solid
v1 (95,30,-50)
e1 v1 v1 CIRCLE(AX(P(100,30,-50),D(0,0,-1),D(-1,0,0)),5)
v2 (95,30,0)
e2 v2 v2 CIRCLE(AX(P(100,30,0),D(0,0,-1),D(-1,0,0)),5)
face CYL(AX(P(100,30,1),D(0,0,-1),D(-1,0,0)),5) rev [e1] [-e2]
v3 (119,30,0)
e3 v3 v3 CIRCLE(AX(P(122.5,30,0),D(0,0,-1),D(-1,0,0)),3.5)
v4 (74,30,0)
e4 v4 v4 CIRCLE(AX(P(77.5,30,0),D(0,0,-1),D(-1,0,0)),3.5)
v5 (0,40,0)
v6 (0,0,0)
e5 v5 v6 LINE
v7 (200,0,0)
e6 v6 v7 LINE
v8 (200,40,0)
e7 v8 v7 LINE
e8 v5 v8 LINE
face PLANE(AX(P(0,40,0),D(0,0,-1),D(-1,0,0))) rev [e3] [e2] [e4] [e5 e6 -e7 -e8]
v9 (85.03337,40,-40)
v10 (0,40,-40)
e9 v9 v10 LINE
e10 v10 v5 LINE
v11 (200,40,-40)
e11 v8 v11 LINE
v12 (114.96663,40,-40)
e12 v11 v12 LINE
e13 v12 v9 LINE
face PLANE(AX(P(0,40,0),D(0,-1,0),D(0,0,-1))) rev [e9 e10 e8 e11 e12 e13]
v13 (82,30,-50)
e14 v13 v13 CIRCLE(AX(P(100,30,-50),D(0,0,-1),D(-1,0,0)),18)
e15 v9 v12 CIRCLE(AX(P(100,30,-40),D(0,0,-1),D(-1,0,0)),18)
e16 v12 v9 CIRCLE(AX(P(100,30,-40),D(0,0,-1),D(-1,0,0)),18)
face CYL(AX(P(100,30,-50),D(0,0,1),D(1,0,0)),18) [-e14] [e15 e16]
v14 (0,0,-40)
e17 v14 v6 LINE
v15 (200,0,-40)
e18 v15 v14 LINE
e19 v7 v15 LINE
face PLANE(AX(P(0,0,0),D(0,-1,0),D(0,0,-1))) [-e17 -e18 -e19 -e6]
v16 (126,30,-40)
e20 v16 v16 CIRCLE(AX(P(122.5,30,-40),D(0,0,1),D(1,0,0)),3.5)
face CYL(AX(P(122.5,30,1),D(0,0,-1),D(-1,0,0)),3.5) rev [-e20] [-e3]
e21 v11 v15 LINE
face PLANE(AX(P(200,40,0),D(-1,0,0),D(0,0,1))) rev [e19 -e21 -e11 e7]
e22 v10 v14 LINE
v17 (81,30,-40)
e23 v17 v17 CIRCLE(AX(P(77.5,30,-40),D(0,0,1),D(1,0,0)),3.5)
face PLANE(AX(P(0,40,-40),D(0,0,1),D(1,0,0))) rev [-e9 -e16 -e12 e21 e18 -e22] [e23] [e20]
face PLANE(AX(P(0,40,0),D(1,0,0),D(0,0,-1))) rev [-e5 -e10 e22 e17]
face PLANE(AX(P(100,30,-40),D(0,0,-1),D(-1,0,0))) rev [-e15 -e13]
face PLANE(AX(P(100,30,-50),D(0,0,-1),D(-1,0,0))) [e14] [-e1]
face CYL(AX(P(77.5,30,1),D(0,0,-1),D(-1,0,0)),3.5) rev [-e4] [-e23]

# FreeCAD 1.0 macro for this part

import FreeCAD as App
import Part
import Sketcher

V = App.Vector
Q = App.Units.Quantity

doc = App.newDocument("Part")
body = doc.addObject("PartDesign::Body", "Body")

sketch1 = body.newObject("Sketcher::SketchObject", "Sketch")
sketch1.AttachmentSupport = (doc.getObject("XZ_Plane"), [""])
sketch1.MapMode = "FlatFace"
sketch1.addGeometry([
    Part.LineSegment(V(0, -40, 0), V(0, 0, 0)),
    Part.LineSegment(V(0, 0, 0), V(200, 0, 0)),
    Part.LineSegment(V(200, 0, 0), V(200, -40, 0)),
    Part.LineSegment(V(200, -40, 0), V(0, -40, 0)),
], False)
sketch1.addConstraint([
    Sketcher.Constraint("Coincident", 0, 2, 1, 1),
    Sketcher.Constraint("Coincident", 1, 2, 2, 1),
    Sketcher.Constraint("Coincident", 2, 2, 3, 1),
    Sketcher.Constraint("Coincident", 3, 2, 0, 1),
    Sketcher.Constraint("Vertical", 0),
    Sketcher.Constraint("Horizontal", 1),
    Sketcher.Constraint("Vertical", 2),
    Sketcher.Constraint("Horizontal", 3),
    Sketcher.Constraint("Coincident", 0, 2, -1, 1),
    Sketcher.Constraint("DistanceX", 1, 1, 1, 2, Q("200 mm")),
    Sketcher.Constraint("DistanceY", 0, 1, 0, 2, Q("40 mm")),
])
pad1 = body.newObject("PartDesign::Pad", "Pad")
pad1.Profile = sketch1
pad1.Length = 40
pad1.Reversed = True

sketch2 = body.newObject("Sketcher::SketchObject", "Sketch001")
sketch2.AttachmentSupport = (doc.getObject("XY_Plane"), [""])
sketch2.MapMode = "FlatFace"
sketch2.AttachmentOffset = App.Placement(V(0, 0, -40), App.Rotation())
sketch2.addGeometry(Part.Circle(V(100, 30, 0), V(0, 0, 1), 18), False)
sketch2.addConstraint([
    Sketcher.Constraint("Diameter", 0, Q("36 mm")),
    Sketcher.Constraint("DistanceX", -1, 1, 0, 3, Q("100 mm")),
    Sketcher.Constraint("DistanceY", -1, 1, 0, 3, Q("30 mm")),
])
pad2 = body.newObject("PartDesign::Pad", "Pad001")
pad2.Profile = sketch2
pad2.Length = 10
pad2.Reversed = True

sketch3 = body.newObject("Sketcher::SketchObject", "Sketch002")
sketch3.AttachmentSupport = (doc.getObject("XY_Plane"), [""])
sketch3.MapMode = "FlatFace"
sketch3.AttachmentOffset = App.Placement(V(0, 0, -50), App.Rotation())
sketch3.addGeometry(Part.Circle(V(100, 30, 0), V(0, 0, 1), 5), False)
sketch3.addConstraint([
    Sketcher.Constraint("Diameter", 0, Q("10 mm")),
    Sketcher.Constraint("DistanceX", -1, 1, 0, 3, Q("100 mm")),
    Sketcher.Constraint("DistanceY", -1, 1, 0, 3, Q("30 mm")),
])
pocket1 = body.newObject("PartDesign::Pocket", "Pocket")
pocket1.Profile = sketch3
pocket1.Length = 51
pocket1.Reversed = True

sketch4 = body.newObject("Sketcher::SketchObject", "Sketch003")
sketch4.AttachmentSupport = (doc.getObject("XY_Plane"), [""])
sketch4.MapMode = "FlatFace"
sketch4.AttachmentOffset = App.Placement(V(0, 0, -50), App.Rotation())
sketch4.addGeometry([
    Part.Circle(V(77.5, 30, 0), V(0, 0, 1), 3.5),
    Part.Circle(V(122.5, 30, 0), V(0, 0, 1), 3.5),
], False)
sketch4.addConstraint([
    Sketcher.Constraint("Equal", 0, 1),
    Sketcher.Constraint("Horizontal", 0, 3, 1, 3),
    Sketcher.Constraint("Diameter", 0, Q("7 mm")),
    Sketcher.Constraint("DistanceY", -1, 1, 0, 3, Q("30 mm")),
    Sketcher.Constraint("DistanceX", 0, 3, 1, 3, Q("45 mm")),
    Sketcher.Constraint("DistanceX", -1, 1, 0, 3, Q("77.5 mm")),
])
pocket2 = body.newObject("PartDesign::Pocket", "Pocket001")
pocket2.Profile = sketch4
pocket2.Length = 51
pocket2.Reversed = True

doc.recompute()
